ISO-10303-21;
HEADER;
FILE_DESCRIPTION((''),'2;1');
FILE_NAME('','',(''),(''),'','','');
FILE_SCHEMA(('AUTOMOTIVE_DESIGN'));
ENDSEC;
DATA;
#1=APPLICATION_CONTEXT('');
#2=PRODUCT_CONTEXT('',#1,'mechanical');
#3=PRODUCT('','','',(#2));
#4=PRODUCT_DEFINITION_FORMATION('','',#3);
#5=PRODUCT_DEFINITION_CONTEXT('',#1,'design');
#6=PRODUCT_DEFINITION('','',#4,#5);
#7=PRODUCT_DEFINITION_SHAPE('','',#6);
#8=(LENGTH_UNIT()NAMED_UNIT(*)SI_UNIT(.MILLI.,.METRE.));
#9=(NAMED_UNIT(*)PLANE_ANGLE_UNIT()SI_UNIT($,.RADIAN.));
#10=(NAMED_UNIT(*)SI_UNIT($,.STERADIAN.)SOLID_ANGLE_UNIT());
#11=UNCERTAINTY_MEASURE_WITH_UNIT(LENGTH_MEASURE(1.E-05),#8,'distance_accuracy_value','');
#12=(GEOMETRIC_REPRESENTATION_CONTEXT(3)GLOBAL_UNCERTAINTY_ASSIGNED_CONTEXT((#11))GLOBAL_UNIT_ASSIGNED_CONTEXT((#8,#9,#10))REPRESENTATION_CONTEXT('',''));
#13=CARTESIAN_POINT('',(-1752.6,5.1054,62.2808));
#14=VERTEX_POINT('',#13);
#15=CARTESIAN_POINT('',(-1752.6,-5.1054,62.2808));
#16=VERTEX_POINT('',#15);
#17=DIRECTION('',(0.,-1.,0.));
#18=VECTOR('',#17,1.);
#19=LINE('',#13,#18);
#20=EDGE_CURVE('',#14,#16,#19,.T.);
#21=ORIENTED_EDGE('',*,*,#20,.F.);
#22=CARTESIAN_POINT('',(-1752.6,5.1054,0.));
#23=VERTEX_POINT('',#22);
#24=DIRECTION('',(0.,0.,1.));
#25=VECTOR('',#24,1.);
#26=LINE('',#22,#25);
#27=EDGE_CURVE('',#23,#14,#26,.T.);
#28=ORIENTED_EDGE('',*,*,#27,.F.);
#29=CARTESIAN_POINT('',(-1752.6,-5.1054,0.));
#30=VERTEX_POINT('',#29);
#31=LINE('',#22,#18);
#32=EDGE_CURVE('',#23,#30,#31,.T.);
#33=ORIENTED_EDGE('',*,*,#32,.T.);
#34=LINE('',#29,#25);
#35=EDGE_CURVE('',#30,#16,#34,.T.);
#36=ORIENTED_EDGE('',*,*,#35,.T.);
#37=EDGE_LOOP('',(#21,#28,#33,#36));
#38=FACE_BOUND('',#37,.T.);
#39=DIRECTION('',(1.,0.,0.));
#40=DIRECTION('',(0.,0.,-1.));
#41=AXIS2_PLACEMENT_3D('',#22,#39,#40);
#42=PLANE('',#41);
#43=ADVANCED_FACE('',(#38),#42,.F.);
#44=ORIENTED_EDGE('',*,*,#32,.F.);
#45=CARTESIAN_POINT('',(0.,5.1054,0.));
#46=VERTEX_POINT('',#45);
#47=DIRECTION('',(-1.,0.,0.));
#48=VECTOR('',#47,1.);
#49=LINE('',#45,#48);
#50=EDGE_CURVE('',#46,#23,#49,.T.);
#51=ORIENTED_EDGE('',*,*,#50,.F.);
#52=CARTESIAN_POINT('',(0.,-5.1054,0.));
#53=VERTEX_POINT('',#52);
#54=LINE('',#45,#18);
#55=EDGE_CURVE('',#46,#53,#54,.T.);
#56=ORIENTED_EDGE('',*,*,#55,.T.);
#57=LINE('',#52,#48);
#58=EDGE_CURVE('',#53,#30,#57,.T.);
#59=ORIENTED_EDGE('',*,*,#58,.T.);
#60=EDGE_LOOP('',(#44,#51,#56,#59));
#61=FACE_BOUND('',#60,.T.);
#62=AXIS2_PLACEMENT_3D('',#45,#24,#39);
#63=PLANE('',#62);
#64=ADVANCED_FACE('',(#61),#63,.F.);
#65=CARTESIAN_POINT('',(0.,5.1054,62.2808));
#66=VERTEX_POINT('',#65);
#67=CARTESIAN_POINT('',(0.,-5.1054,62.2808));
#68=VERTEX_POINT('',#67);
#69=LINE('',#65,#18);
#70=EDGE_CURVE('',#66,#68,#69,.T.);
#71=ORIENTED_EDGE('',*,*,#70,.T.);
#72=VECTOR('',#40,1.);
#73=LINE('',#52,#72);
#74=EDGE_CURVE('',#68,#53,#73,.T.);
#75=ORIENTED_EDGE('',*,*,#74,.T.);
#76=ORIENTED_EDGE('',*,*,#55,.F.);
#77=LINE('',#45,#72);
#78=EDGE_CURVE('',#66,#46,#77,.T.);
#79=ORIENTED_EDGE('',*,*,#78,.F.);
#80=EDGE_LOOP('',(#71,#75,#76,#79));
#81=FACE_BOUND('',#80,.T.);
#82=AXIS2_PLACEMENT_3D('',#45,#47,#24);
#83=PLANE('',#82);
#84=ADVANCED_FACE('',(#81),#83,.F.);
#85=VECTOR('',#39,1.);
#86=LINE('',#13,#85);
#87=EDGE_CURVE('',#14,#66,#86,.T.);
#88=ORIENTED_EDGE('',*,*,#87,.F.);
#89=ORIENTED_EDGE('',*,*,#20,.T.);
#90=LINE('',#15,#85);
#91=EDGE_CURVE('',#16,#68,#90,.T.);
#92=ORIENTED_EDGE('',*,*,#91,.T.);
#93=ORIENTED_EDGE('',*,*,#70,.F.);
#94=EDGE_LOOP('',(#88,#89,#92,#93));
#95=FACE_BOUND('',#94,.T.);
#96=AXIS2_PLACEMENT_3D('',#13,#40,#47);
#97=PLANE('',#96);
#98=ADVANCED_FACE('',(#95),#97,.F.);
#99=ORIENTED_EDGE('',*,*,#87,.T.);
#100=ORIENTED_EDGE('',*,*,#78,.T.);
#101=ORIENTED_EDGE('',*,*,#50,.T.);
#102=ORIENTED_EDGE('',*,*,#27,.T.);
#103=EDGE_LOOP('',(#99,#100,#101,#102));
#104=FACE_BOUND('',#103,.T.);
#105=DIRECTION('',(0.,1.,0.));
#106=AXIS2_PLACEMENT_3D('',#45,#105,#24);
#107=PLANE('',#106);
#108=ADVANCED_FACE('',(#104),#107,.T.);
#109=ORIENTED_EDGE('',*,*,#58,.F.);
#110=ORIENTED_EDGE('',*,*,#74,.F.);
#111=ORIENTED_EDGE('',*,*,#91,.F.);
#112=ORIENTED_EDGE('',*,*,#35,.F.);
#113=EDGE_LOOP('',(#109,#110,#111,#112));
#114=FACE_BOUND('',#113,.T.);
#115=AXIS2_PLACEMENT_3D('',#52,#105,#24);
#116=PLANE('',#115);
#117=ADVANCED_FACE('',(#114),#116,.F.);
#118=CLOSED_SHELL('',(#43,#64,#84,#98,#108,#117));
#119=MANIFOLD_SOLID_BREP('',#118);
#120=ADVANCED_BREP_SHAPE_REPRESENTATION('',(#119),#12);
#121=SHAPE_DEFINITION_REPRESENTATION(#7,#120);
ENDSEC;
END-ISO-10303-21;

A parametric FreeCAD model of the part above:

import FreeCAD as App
import Part
import Sketcher
from FreeCAD import Vector
Q = App.Units.Quantity


def add_polygon(sketch, points):
    """Adds a closed chain of lines whose ends are joined by coincident constraints."""
    first, n = sketch.GeometryCount, len(points)
    for a, b in zip(points, points[1:] + points[:1]):
        sketch.addGeometry(Part.LineSegment(App.Vector(*a, 0), App.Vector(*b, 0)), False)
    for i in range(n):
        sketch.addConstraint(Sketcher.Constraint("Coincident", first + i, 2, first + (i + 1) % n, 1))

doc = App.newDocument("Part")
params = doc.addObject("Spreadsheet::Sheet", "Params")
for row, (alias, value) in enumerate([
    ("sketch1_width", "69 in"),
    ("sketch1_height", "2.452 in"),
    ("pad1_length", "0.402 in"),
], start=1):
    params.set(f"A{row}", alias)
    params.set(f"B{row}", "=" + value)
    params.setAlias(f"B{row}", alias)

body = doc.addObject("PartDesign::Body", "Body")

sketch1 = body.newObject("Sketcher::SketchObject", "Sketch")
sketch1.AttachmentSupport = (doc.getObject("XZ_Plane"), [""])
sketch1.MapMode = "FlatFace"
add_polygon(sketch1, [(-1753, 0), (-1753, 62), (0, 62), (0, 0)])
sketch1.addConstraint([
    Sketcher.Constraint("Vertical", 0),
    Sketcher.Constraint("Horizontal", 1),
    Sketcher.Constraint("Vertical", 2),
    Sketcher.Constraint("Horizontal", 3),
    Sketcher.Constraint("Coincident", 2, 2, -1, 1),
    Sketcher.Constraint("DistanceX", 1, 1, 1, 2, Q("69 in")),
    Sketcher.Constraint("DistanceY", 0, 1, 0, 2, Q("2.452 in")),
])
sketch1.setExpression("Constraints[9]", "Params.sketch1_width")
sketch1.setExpression("Constraints[10]", "Params.sketch1_height")
pad1 = body.newObject("PartDesign::Pad", "Pad")
pad1.Profile = sketch1
pad1.setExpression("Length", "Params.pad1_length")
pad1.Midplane = True

doc.recompute()
